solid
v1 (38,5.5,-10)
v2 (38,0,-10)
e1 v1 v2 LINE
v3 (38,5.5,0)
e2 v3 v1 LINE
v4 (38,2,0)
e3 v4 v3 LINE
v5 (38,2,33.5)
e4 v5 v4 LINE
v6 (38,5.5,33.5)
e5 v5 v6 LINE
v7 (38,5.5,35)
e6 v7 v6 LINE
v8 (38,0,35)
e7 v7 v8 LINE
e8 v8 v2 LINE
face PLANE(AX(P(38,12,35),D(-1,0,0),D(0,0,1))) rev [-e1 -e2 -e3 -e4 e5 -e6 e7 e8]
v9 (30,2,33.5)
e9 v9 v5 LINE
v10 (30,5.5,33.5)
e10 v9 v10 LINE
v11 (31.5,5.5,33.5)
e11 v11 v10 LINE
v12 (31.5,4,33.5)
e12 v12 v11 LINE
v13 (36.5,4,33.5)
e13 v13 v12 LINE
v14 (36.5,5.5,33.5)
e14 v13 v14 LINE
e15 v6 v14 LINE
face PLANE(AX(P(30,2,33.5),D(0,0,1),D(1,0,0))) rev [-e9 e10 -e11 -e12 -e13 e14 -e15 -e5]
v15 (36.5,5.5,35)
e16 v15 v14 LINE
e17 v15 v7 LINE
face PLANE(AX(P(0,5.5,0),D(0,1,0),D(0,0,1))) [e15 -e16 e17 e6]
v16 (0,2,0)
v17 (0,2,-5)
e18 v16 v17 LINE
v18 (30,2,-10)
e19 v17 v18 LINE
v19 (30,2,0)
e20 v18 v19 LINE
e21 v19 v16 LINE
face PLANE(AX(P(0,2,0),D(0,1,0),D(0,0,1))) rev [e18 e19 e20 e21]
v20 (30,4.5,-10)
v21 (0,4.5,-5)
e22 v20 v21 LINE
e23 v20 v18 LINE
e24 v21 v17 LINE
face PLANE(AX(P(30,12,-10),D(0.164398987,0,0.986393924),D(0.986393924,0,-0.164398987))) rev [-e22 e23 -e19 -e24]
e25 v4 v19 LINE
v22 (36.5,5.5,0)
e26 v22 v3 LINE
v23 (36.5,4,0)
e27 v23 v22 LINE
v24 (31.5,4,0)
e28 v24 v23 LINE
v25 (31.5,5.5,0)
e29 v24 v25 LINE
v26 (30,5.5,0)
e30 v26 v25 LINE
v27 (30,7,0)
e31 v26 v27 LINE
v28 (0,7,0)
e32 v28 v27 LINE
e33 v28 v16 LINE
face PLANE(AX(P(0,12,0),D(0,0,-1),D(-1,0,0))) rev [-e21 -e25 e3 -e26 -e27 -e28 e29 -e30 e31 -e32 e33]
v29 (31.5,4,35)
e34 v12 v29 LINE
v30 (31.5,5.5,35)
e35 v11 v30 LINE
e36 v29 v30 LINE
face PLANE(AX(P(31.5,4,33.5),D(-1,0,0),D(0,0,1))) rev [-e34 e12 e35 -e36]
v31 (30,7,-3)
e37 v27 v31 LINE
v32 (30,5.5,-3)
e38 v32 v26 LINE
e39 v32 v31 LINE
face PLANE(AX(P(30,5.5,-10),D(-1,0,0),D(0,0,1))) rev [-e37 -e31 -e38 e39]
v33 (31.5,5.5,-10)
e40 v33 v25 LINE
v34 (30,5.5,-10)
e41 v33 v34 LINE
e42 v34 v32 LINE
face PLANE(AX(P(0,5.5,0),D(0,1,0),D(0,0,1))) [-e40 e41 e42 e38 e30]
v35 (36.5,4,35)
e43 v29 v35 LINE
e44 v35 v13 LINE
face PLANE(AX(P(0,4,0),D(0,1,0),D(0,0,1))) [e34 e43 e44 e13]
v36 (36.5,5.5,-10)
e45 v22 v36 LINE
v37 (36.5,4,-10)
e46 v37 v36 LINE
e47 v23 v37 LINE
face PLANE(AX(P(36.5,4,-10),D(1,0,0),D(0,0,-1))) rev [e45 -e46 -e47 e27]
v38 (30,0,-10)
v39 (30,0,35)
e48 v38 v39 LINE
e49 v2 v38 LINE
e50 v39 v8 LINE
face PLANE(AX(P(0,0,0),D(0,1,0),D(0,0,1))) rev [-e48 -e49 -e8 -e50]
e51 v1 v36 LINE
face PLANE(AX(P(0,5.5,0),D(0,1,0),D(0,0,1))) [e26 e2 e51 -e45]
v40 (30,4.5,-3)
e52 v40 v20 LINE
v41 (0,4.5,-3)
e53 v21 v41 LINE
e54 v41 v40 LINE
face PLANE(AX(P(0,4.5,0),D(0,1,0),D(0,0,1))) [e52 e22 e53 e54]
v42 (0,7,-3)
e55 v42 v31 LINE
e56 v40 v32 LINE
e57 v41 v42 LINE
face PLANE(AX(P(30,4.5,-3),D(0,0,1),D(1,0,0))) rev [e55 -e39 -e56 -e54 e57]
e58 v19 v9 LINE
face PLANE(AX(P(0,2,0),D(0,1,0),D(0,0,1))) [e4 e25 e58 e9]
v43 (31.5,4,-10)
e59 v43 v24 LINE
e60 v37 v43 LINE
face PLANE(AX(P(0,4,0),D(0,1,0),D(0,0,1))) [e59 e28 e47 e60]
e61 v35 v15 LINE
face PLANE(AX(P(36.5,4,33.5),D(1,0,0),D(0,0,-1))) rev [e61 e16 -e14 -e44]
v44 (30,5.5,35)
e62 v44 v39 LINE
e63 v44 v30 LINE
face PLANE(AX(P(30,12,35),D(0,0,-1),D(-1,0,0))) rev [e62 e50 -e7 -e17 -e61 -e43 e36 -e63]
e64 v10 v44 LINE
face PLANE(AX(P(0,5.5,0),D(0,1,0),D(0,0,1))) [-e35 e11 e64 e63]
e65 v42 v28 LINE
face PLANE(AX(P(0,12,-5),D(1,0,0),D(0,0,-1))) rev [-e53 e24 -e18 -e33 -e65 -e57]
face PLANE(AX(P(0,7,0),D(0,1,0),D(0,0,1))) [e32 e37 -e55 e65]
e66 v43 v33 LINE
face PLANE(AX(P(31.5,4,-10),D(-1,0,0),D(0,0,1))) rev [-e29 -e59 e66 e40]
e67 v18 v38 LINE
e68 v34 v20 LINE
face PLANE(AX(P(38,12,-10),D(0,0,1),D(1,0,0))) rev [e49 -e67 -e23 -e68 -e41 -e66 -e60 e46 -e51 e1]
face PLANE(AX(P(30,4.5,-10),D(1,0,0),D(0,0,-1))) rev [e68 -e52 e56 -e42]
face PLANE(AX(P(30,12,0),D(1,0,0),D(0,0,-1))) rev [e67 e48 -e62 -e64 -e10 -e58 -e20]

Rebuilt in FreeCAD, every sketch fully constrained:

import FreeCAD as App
import Part
import Sketcher
Q = App.Units.Quantity

doc = App.newDocument("Part")
params = doc.addObject("Spreadsheet::Sheet", "Params")
for row, (alias, value) in enumerate([
    ("sketch1_width", "30 mm"),
    ("sketch1_width2", "8 mm"),
    ("sketch1_height", "35 mm"),
    ("sketch1_height2", "45 mm"),
    ("sketch1_height3", "5 mm"),
    ("pad1_length", "12 mm"),
    ("sketch2_width", "8 mm"),
    ("sketch2_height", "33.5 mm"),
    ("pocket1_length", "10 mm"),
    ("sketch3_width", "8 mm"),
    ("sketch3_height", "45 mm"),
    ("pocket2_length", "6.5 mm"),
    ("sketch4_width", "5 mm"),
    ("sketch4_height", "10 mm"),
    ("pocket3_length", "1.5 mm"),
    ("sketch5_width", "5 mm"),
    ("sketch5_height", "1.5 mm"),
    ("pocket4_length", "1.5 mm"),
    ("sketch6_width", "30 mm"),
    ("sketch6_height", "5 mm"),
    ("sketch6_height2", "10 mm"),
    ("pocket5_length", "2 mm"),
    ("sketch7_width", "30 mm"),
    ("sketch7_height", "5 mm"),
    ("sketch7_height2", "10 mm"),
    ("pocket6_length", "1 mm"),
    ("sketch8_width", "30 mm"),
    ("sketch8_height", "2 mm"),
    ("sketch8_height2", "7 mm"),
    ("pocket7_length", "4 mm"),
    ("sketch9_width", "30 mm"),
    ("sketch9_height", "3 mm"),
    ("pocket8_length", "4 mm"),
    ("sketch10_width", "30 mm"),
    ("sketch10_height", "2 mm"),
    ("sketch10_height2", "7 mm"),
    ("pocket9_length", "2.5 mm"),
], start=1):
    params.set(f"A{row}", alias)
    params.set(f"B{row}", "=" + value)
    params.setAlias(f"B{row}", alias)

body = doc.addObject("PartDesign::Body", "Body")

# Sketch on XZ plane
sketch1 = body.newObject("Sketcher::SketchObject", "Sketch")
sketch1.AttachmentSupport = (doc.getObject("XZ_Plane"), [""])
sketch1.MapMode = "FlatFace"
sketch1.addGeometry(Part.LineSegment(App.Vector(0, 0, 0), App.Vector(30, 0, 0)), False)
sketch1.addGeometry(Part.LineSegment(App.Vector(30, 0, 0), App.Vector(30, 35, 0)), False)
sketch1.addGeometry(Part.LineSegment(App.Vector(30, 35, 0), App.Vector(38, 35, 0)), False)
sketch1.addGeometry(Part.LineSegment(App.Vector(38, 35, 0), App.Vector(38, -10, 0)), False)
sketch1.addGeometry(Part.LineSegment(App.Vector(38, -10, 0), App.Vector(30, -10, 0)), False)
sketch1.addGeometry(Part.LineSegment(App.Vector(30, -10, 0), App.Vector(0, -5, 0)), False)
sketch1.addGeometry(Part.LineSegment(App.Vector(0, -5, 0), App.Vector(0, 0, 0)), False)
sketch1.addConstraint(Sketcher.Constraint("Coincident", 0, 2, 1, 1))
sketch1.addConstraint(Sketcher.Constraint("Coincident", 1, 2, 2, 1))
sketch1.addConstraint(Sketcher.Constraint("Coincident", 2, 2, 3, 1))
sketch1.addConstraint(Sketcher.Constraint("Coincident", 3, 2, 4, 1))
sketch1.addConstraint(Sketcher.Constraint("Coincident", 4, 2, 5, 1))
sketch1.addConstraint(Sketcher.Constraint("Coincident", 5, 2, 6, 1))
sketch1.addConstraint(Sketcher.Constraint("Coincident", 6, 2, 0, 1))
sketch1.addConstraint(Sketcher.Constraint("Horizontal", 0))
sketch1.addConstraint(Sketcher.Constraint("Vertical", 1))
sketch1.addConstraint(Sketcher.Constraint("Horizontal", 2))
sketch1.addConstraint(Sketcher.Constraint("Vertical", 3))
sketch1.addConstraint(Sketcher.Constraint("Horizontal", 4))
sketch1.addConstraint(Sketcher.Constraint("Vertical", 6))
sketch1.addConstraint(Sketcher.Constraint("Coincident", 6, 2, -1, 1))
sketch1.addConstraint(Sketcher.Constraint("Vertical", 1, 2, 4, 2))
sketch1.addConstraint(Sketcher.Constraint("DistanceX", 0, 1, 0, 2, Q("30 mm")))
sketch1.addConstraint(Sketcher.Constraint("DistanceX", 2, 1, 2, 2, Q("8 mm")))
sketch1.addConstraint(Sketcher.Constraint("DistanceY", 1, 1, 1, 2, Q("35 mm")))
sketch1.addConstraint(Sketcher.Constraint("DistanceY", 3, 2, 3, 1, Q("45 mm")))
sketch1.addConstraint(Sketcher.Constraint("DistanceY", 6, 1, 6, 2, Q("5 mm")))
sketch1.setExpression("Constraints[15]", "Params.sketch1_width")
sketch1.setExpression("Constraints[16]", "Params.sketch1_width2")
sketch1.setExpression("Constraints[17]", "Params.sketch1_height")
sketch1.setExpression("Constraints[18]", "Params.sketch1_height2")
sketch1.setExpression("Constraints[19]", "Params.sketch1_height3")
pad1 = body.newObject("PartDesign::Pad", "Pad")
pad1.Profile = sketch1
pad1.setExpression("Length", "Params.pad1_length")
pad1.Reversed = True

# Sketch on XZ plane
sketch2 = body.newObject("Sketcher::SketchObject", "Sketch001")
sketch2.AttachmentSupport = (doc.getObject("XZ_Plane"), [""])
sketch2.MapMode = "FlatFace"
sketch2.AttachmentOffset = App.Placement(App.Vector(0, 0, -12), App.Rotation())
sketch2.addGeometry(Part.LineSegment(App.Vector(30, 0, 0), App.Vector(30, 33.5, 0)), False)
sketch2.addGeometry(Part.LineSegment(App.Vector(30, 33.5, 0), App.Vector(38, 33.5, 0)), False)
sketch2.addGeometry(Part.LineSegment(App.Vector(38, 33.5, 0), App.Vector(38, 0, 0)), False)
sketch2.addGeometry(Part.LineSegment(App.Vector(38, 0, 0), App.Vector(30, 0, 0)), False)
sketch2.addConstraint(Sketcher.Constraint("Coincident", 0, 2, 1, 1))
sketch2.addConstraint(Sketcher.Constraint("Coincident", 1, 2, 2, 1))
sketch2.addConstraint(Sketcher.Constraint("Coincident", 2, 2, 3, 1))
sketch2.addConstraint(Sketcher.Constraint("Coincident", 3, 2, 0, 1))
sketch2.addConstraint(Sketcher.Constraint("Vertical", 0))
sketch2.addConstraint(Sketcher.Constraint("Horizontal", 1))
sketch2.addConstraint(Sketcher.Constraint("Vertical", 2))
sketch2.addConstraint(Sketcher.Constraint("Horizontal", 3))
sketch2.addConstraint(Sketcher.Constraint("PointOnObject", 2, 2, -1))
sketch2.addConstraint(Sketcher.Constraint("DistanceX", 1, 1, 1, 2, Q("8 mm")))
sketch2.addConstraint(Sketcher.Constraint("DistanceY", 0, 1, 0, 2, Q("33.5 mm")))
sketch2.addConstraint(Sketcher.Constraint("DistanceX", -1, 1, 0, 2, Q("30 mm")))
sketch2.setExpression("Constraints[9]", "Params.sketch2_width")
sketch2.setExpression("Constraints[10]", "Params.sketch2_height")
pocket1 = body.newObject("PartDesign::Pocket", "Pocket")
pocket1.Profile = sketch2
pocket1.setExpression("Length", "Params.pocket1_length")
pocket1.Reversed = True

# Sketch on XZ plane
sketch3 = body.newObject("Sketcher::SketchObject", "Sketch002")
sketch3.AttachmentSupport = (doc.getObject("XZ_Plane"), [""])
sketch3.MapMode = "FlatFace"
sketch3.AttachmentOffset = App.Placement(App.Vector(0, 0, -12), App.Rotation())
sketch3.addGeometry(Part.LineSegment(App.Vector(30, -10, 0), App.Vector(30, 35, 0)), False)
sketch3.addGeometry(Part.LineSegment(App.Vector(30, 35, 0), App.Vector(38, 35, 0)), False)
sketch3.addGeometry(Part.LineSegment(App.Vector(38, 35, 0), App.Vector(38, -10, 0)), False)
sketch3.addGeometry(Part.LineSegment(App.Vector(38, -10, 0), App.Vector(30, -10, 0)), False)
sketch3.addConstraint(Sketcher.Constraint("Coincident", 0, 2, 1, 1))
sketch3.addConstraint(Sketcher.Constraint("Coincident", 1, 2, 2, 1))
sketch3.addConstraint(Sketcher.Constraint("Coincident", 2, 2, 3, 1))
sketch3.addConstraint(Sketcher.Constraint("Coincident", 3, 2, 0, 1))
sketch3.addConstraint(Sketcher.Constraint("Vertical", 0))
sketch3.addConstraint(Sketcher.Constraint("Horizontal", 1))
sketch3.addConstraint(Sketcher.Constraint("Vertical", 2))
sketch3.addConstraint(Sketcher.Constraint("Horizontal", 3))
sketch3.addConstraint(Sketcher.Constraint("DistanceX", 1, 1, 1, 2, Q("8 mm")))
sketch3.addConstraint(Sketcher.Constraint("DistanceY", 0, 1, 0, 2, Q("45 mm")))
sketch3.addConstraint(Sketcher.Constraint("DistanceX", -1, 1, 0, 2, Q("30 mm")))
sketch3.addConstraint(Sketcher.Constraint("DistanceY", -1, 1, 0, 2, Q("35 mm")))
sketch3.setExpression("Constraints[8]", "Params.sketch3_width")
sketch3.setExpression("Constraints[9]", "Params.sketch3_height")
pocket2 = body.newObject("PartDesign::Pocket", "Pocket001")
pocket2.Profile = sketch3
pocket2.setExpression("Length", "Params.pocket2_length")
pocket2.Reversed = True

# Sketch on XZ plane
sketch4 = body.newObject("Sketcher::SketchObject", "Sketch003")
sketch4.AttachmentSupport = (doc.getObject("XZ_Plane"), [""])
sketch4.MapMode = "FlatFace"
sketch4.AttachmentOffset = App.Placement(App.Vector(0, 0, -5.5), App.Rotation())
sketch4.addGeometry(Part.LineSegment(App.Vector(31.5, -10, 0), App.Vector(31.5, 0, 0)), False)
sketch4.addGeometry(Part.LineSegment(App.Vector(31.5, 0, 0), App.Vector(36.5, 0, 0)), False)
sketch4.addGeometry(Part.LineSegment(App.Vector(36.5, 0, 0), App.Vector(36.5, -10, 0)), False)
sketch4.addGeometry(Part.LineSegment(App.Vector(36.5, -10, 0), App.Vector(31.5, -10, 0)), False)
sketch4.addConstraint(Sketcher.Constraint("Coincident", 0, 2, 1, 1))
sketch4.addConstraint(Sketcher.Constraint("Coincident", 1, 2, 2, 1))
sketch4.addConstraint(Sketcher.Constraint("Coincident", 2, 2, 3, 1))
sketch4.addConstraint(Sketcher.Constraint("Coincident", 3, 2, 0, 1))
sketch4.addConstraint(Sketcher.Constraint("Vertical", 0))
sketch4.addConstraint(Sketcher.Constraint("Horizontal", 1))
sketch4.addConstraint(Sketcher.Constraint("Vertical", 2))
sketch4.addConstraint(Sketcher.Constraint("Horizontal", 3))
sketch4.addConstraint(Sketcher.Constraint("PointOnObject", 0, 2, -1))
sketch4.addConstraint(Sketcher.Constraint("DistanceX", 1, 1, 1, 2, Q("5 mm")))
sketch4.addConstraint(Sketcher.Constraint("DistanceY", 0, 1, 0, 2, Q("10 mm")))
sketch4.addConstraint(Sketcher.Constraint("DistanceX", -1, 1, 0, 2, Q("31.5 mm")))
sketch4.setExpression("Constraints[9]", "Params.sketch4_width")
sketch4.setExpression("Constraints[10]", "Params.sketch4_height")
pocket3 = body.newObject("PartDesign::Pocket", "Pocket002")
pocket3.Profile = sketch4
pocket3.setExpression("Length", "Params.pocket3_length")
pocket3.Reversed = True

# Sketch on XZ plane
sketch5 = body.newObject("Sketcher::SketchObject", "Sketch004")
sketch5.AttachmentSupport = (doc.getObject("XZ_Plane"), [""])
sketch5.MapMode = "FlatFace"
sketch5.AttachmentOffset = App.Placement(App.Vector(0, 0, -5.5), App.Rotation())
sketch5.addGeometry(Part.LineSegment(App.Vector(31.5, 33.5, 0), App.Vector(31.5, 35, 0)), False)
sketch5.addGeometry(Part.LineSegment(App.Vector(31.5, 35, 0), App.Vector(36.5, 35, 0)), False)
sketch5.addGeometry(Part.LineSegment(App.Vector(36.5, 35, 0), App.Vector(36.5, 33.5, 0)), False)
sketch5.addGeometry(Part.LineSegment(App.Vector(36.5, 33.5, 0), App.Vector(31.5, 33.5, 0)), False)
sketch5.addConstraint(Sketcher.Constraint("Coincident", 0, 2, 1, 1))
sketch5.addConstraint(Sketcher.Constraint("Coincident", 1, 2, 2, 1))
sketch5.addConstraint(Sketcher.Constraint("Coincident", 2, 2, 3, 1))
sketch5.addConstraint(Sketcher.Constraint("Coincident", 3, 2, 0, 1))
sketch5.addConstraint(Sketcher.Constraint("Vertical", 0))
sketch5.addConstraint(Sketcher.Constraint("Horizontal", 1))
sketch5.addConstraint(Sketcher.Constraint("Vertical", 2))
sketch5.addConstraint(Sketcher.Constraint("Horizontal", 3))
sketch5.addConstraint(Sketcher.Constraint("DistanceX", 1, 1, 1, 2, Q("5 mm")))
sketch5.addConstraint(Sketcher.Constraint("DistanceY", 0, 1, 0, 2, Q("1.5 mm")))
sketch5.addConstraint(Sketcher.Constraint("DistanceY", -1, 1, 0, 2, Q("35 mm")))
sketch5.addConstraint(Sketcher.Constraint("DistanceX", -1, 1, 0, 2, Q("31.5 mm")))
sketch5.setExpression("Constraints[8]", "Params.sketch5_width")
sketch5.setExpression("Constraints[9]", "Params.sketch5_height")
pocket4 = body.newObject("PartDesign::Pocket", "Pocket003")
pocket4.Profile = sketch5
pocket4.setExpression("Length", "Params.pocket4_length")
pocket4.Reversed = True

# Sketch on XZ plane
sketch6 = body.newObject("Sketcher::SketchObject", "Sketch005")
sketch6.AttachmentSupport = (doc.getObject("XZ_Plane"), [""])
sketch6.MapMode = "FlatFace"
sketch6.addGeometry(Part.LineSegment(App.Vector(30, 0, 0), App.Vector(0, 0, 0)), False)
sketch6.addGeometry(Part.LineSegment(App.Vector(0, 0, 0), App.Vector(0, -5, 0)), False)
sketch6.addGeometry(Part.LineSegment(App.Vector(0, -5, 0), App.Vector(30, -10, 0)), False)
sketch6.addGeometry(Part.LineSegment(App.Vector(30, -10, 0), App.Vector(30, 0, 0)), False)
sketch6.addConstraint(Sketcher.Constraint("Coincident", 0, 2, 1, 1))
sketch6.addConstraint(Sketcher.Constraint("Coincident", 1, 2, 2, 1))
sketch6.addConstraint(Sketcher.Constraint("Coincident", 2, 2, 3, 1))
sketch6.addConstraint(Sketcher.Constraint("Coincident", 3, 2, 0, 1))
sketch6.addConstraint(Sketcher.Constraint("Horizontal", 0))
sketch6.addConstraint(Sketcher.Constraint("Vertical", 1))
sketch6.addConstraint(Sketcher.Constraint("Vertical", 3))
sketch6.addConstraint(Sketcher.Constraint("Coincident", 0, 2, -1, 1))
sketch6.addConstraint(Sketcher.Constraint("DistanceX", 0, 2, 0, 1, Q("30 mm")))
sketch6.addConstraint(Sketcher.Constraint("DistanceY", 1, 2, 1, 1, Q("5 mm")))
sketch6.addConstraint(Sketcher.Constraint("DistanceY", 3, 1, 3, 2, Q("10 mm")))
sketch6.setExpression("Constraints[8]", "Params.sketch6_width")
sketch6.setExpression("Constraints[9]", "Params.sketch6_height")
sketch6.setExpression("Constraints[10]", "Params.sketch6_height2")
pocket5 = body.newObject("PartDesign::Pocket", "Pocket004")
pocket5.Profile = sketch6
pocket5.setExpression("Length", "Params.pocket5_length")

# Sketch on XZ plane
sketch7 = body.newObject("Sketcher::SketchObject", "Sketch006")
sketch7.AttachmentSupport = (doc.getObject("XZ_Plane"), [""])
sketch7.MapMode = "FlatFace"
sketch7.AttachmentOffset = App.Placement(App.Vector(0, 0, -12), App.Rotation())
sketch7.addGeometry(Part.LineSegment(App.Vector(30, -10, 0), App.Vector(0, -5, 0)), False)
sketch7.addGeometry(Part.LineSegment(App.Vector(0, -5, 0), App.Vector(0, 0, 0)), False)
sketch7.addGeometry(Part.LineSegment(App.Vector(0, 0, 0), App.Vector(30, 0, 0)), False)
sketch7.addGeometry(Part.LineSegment(App.Vector(30, 0, 0), App.Vector(30, -10, 0)), False)
sketch7.addConstraint(Sketcher.Constraint("Coincident", 0, 2, 1, 1))
sketch7.addConstraint(Sketcher.Constraint("Coincident", 1, 2, 2, 1))
sketch7.addConstraint(Sketcher.Constraint("Coincident", 2, 2, 3, 1))
sketch7.addConstraint(Sketcher.Constraint("Coincident", 3, 2, 0, 1))
sketch7.addConstraint(Sketcher.Constraint("Vertical", 1))
sketch7.addConstraint(Sketcher.Constraint("Horizontal", 2))
sketch7.addConstraint(Sketcher.Constraint("Vertical", 3))
sketch7.addConstraint(Sketcher.Constraint("Coincident", 1, 2, -1, 1))
sketch7.addConstraint(Sketcher.Constraint("DistanceX", 2, 1, 2, 2, Q("30 mm")))
sketch7.addConstraint(Sketcher.Constraint("DistanceY", 1, 1, 1, 2, Q("5 mm")))
sketch7.addConstraint(Sketcher.Constraint("DistanceY", 3, 2, 3, 1, Q("10 mm")))
sketch7.setExpression("Constraints[8]", "Params.sketch7_width")
sketch7.setExpression("Constraints[9]", "Params.sketch7_height")
sketch7.setExpression("Constraints[10]", "Params.sketch7_height2")
pocket6 = body.newObject("PartDesign::Pocket", "Pocket005")
pocket6.Profile = sketch7
pocket6.setExpression("Length", "Params.pocket6_length")
pocket6.Reversed = True

# Sketch on XZ plane
sketch8 = body.newObject("Sketcher::SketchObject", "Sketch007")
sketch8.AttachmentSupport = (doc.getObject("XZ_Plane"), [""])
sketch8.MapMode = "FlatFace"
sketch8.AttachmentOffset = App.Placement(App.Vector(0, 0, -11), App.Rotation())
sketch8.addGeometry(Part.LineSegment(App.Vector(30, -10, 0), App.Vector(0, -5, 0)), False)
sketch8.addGeometry(Part.LineSegment(App.Vector(0, -5, 0), App.Vector(0, -3, 0)), False)
sketch8.addGeometry(Part.LineSegment(App.Vector(0, -3, 0), App.Vector(30, -3, 0)), False)
sketch8.addGeometry(Part.LineSegment(App.Vector(30, -3, 0), App.Vector(30, -10, 0)), False)
sketch8.addConstraint(Sketcher.Constraint("Coincident", 0, 2, 1, 1))
sketch8.addConstraint(Sketcher.Constraint("Coincident", 1, 2, 2, 1))
sketch8.addConstraint(Sketcher.Constraint("Coincident", 2, 2, 3, 1))
sketch8.addConstraint(Sketcher.Constraint("Coincident", 3, 2, 0, 1))
sketch8.addConstraint(Sketcher.Constraint("Vertical", 1))
sketch8.addConstraint(Sketcher.Constraint("Horizontal", 2))
sketch8.addConstraint(Sketcher.Constraint("Vertical", 3))
sketch8.addConstraint(Sketcher.Constraint("PointOnObject", 0, 2, -2))
sketch8.addConstraint(Sketcher.Constraint("DistanceX", 2, 1, 2, 2, Q("30 mm")))
sketch8.addConstraint(Sketcher.Constraint("DistanceY", 1, 1, 1, 2, Q("2 mm")))
sketch8.addConstraint(Sketcher.Constraint("DistanceY", 3, 2, 3, 1, Q("7 mm")))
sketch8.addConstraint(Sketcher.Constraint("DistanceY", 0, 2, -1, 1, Q("5 mm")))
sketch8.setExpression("Constraints[8]", "Params.sketch8_width")
sketch8.setExpression("Constraints[9]", "Params.sketch8_height")
sketch8.setExpression("Constraints[10]", "Params.sketch8_height2")
pocket7 = body.newObject("PartDesign::Pocket", "Pocket006")
pocket7.Profile = sketch8
pocket7.setExpression("Length", "Params.pocket7_length")
pocket7.Reversed = True

# Sketch on XZ plane
sketch9 = body.newObject("Sketcher::SketchObject", "Sketch008")
sketch9.AttachmentSupport = (doc.getObject("XZ_Plane"), [""])
sketch9.MapMode = "FlatFace"
sketch9.AttachmentOffset = App.Placement(App.Vector(0, 0, -11), App.Rotation())
sketch9.addGeometry(Part.LineSegment(App.Vector(0, -3, 0), App.Vector(0, 0, 0)), False)
sketch9.addGeometry(Part.LineSegment(App.Vector(0, 0, 0), App.Vector(30, 0, 0)), False)
sketch9.addGeometry(Part.LineSegment(App.Vector(30, 0, 0), App.Vector(30, -3, 0)), False)
sketch9.addGeometry(Part.LineSegment(App.Vector(30, -3, 0), App.Vector(0, -3, 0)), False)
sketch9.addConstraint(Sketcher.Constraint("Coincident", 0, 2, 1, 1))
sketch9.addConstraint(Sketcher.Constraint("Coincident", 1, 2, 2, 1))
sketch9.addConstraint(Sketcher.Constraint("Coincident", 2, 2, 3, 1))
sketch9.addConstraint(Sketcher.Constraint("Coincident", 3, 2, 0, 1))
sketch9.addConstraint(Sketcher.Constraint("Vertical", 0))
sketch9.addConstraint(Sketcher.Constraint("Horizontal", 1))
sketch9.addConstraint(Sketcher.Constraint("Vertical", 2))
sketch9.addConstraint(Sketcher.Constraint("Horizontal", 3))
sketch9.addConstraint(Sketcher.Constraint("Coincident", 0, 2, -1, 1))
sketch9.addConstraint(Sketcher.Constraint("DistanceX", 1, 1, 1, 2, Q("30 mm")))
sketch9.addConstraint(Sketcher.Constraint("DistanceY", 0, 1, 0, 2, Q("3 mm")))
sketch9.setExpression("Constraints[9]", "Params.sketch9_width")
sketch9.setExpression("Constraints[10]", "Params.sketch9_height")
pocket8 = body.newObject("PartDesign::Pocket", "Pocket007")
pocket8.Profile = sketch9
pocket8.setExpression("Length", "Params.pocket8_length")
pocket8.Reversed = True

# Sketch on XZ plane
sketch10 = body.newObject("Sketcher::SketchObject", "Sketch009")
sketch10.AttachmentSupport = (doc.getObject("XZ_Plane"), [""])
sketch10.MapMode = "FlatFace"
sketch10.AttachmentOffset = App.Placement(App.Vector(0, 0, -7), App.Rotation())
sketch10.addGeometry(Part.LineSegment(App.Vector(30, -10, 0), App.Vector(0, -5, 0)), False)
sketch10.addGeometry(Part.LineSegment(App.Vector(0, -5, 0), App.Vector(0, -3, 0)), False)
sketch10.addGeometry(Part.LineSegment(App.Vector(0, -3, 0), App.Vector(30, -3, 0)), False)
sketch10.addGeometry(Part.LineSegment(App.Vector(30, -3, 0), App.Vector(30, -10, 0)), False)
sketch10.addConstraint(Sketcher.Constraint("Coincident", 0, 2, 1, 1))
sketch10.addConstraint(Sketcher.Constraint("Coincident", 1, 2, 2, 1))
sketch10.addConstraint(Sketcher.Constraint("Coincident", 2, 2, 3, 1))
sketch10.addConstraint(Sketcher.Constraint("Coincident", 3, 2, 0, 1))
sketch10.addConstraint(Sketcher.Constraint("Vertical", 1))
sketch10.addConstraint(Sketcher.Constraint("Horizontal", 2))
sketch10.addConstraint(Sketcher.Constraint("Vertical", 3))
sketch10.addConstraint(Sketcher.Constraint("PointOnObject", 0, 2, -2))
sketch10.addConstraint(Sketcher.Constraint("DistanceX", 2, 1, 2, 2, Q("30 mm")))
sketch10.addConstraint(Sketcher.Constraint("DistanceY", 1, 1, 1, 2, Q("2 mm")))
sketch10.addConstraint(Sketcher.Constraint("DistanceY", 3, 2, 3, 1, Q("7 mm")))
sketch10.addConstraint(Sketcher.Constraint("DistanceY", 0, 2, -1, 1, Q("5 mm")))
sketch10.setExpression("Constraints[8]", "Params.sketch10_width")
sketch10.setExpression("Constraints[9]", "Params.sketch10_height")
sketch10.setExpression("Constraints[10]", "Params.sketch10_height2")
pocket9 = body.newObject("PartDesign::Pocket", "Pocket008")
pocket9.Profile = sketch10
pocket9.setExpression("Length", "Params.pocket9_length")
pocket9.Reversed = True

doc.recompute()
